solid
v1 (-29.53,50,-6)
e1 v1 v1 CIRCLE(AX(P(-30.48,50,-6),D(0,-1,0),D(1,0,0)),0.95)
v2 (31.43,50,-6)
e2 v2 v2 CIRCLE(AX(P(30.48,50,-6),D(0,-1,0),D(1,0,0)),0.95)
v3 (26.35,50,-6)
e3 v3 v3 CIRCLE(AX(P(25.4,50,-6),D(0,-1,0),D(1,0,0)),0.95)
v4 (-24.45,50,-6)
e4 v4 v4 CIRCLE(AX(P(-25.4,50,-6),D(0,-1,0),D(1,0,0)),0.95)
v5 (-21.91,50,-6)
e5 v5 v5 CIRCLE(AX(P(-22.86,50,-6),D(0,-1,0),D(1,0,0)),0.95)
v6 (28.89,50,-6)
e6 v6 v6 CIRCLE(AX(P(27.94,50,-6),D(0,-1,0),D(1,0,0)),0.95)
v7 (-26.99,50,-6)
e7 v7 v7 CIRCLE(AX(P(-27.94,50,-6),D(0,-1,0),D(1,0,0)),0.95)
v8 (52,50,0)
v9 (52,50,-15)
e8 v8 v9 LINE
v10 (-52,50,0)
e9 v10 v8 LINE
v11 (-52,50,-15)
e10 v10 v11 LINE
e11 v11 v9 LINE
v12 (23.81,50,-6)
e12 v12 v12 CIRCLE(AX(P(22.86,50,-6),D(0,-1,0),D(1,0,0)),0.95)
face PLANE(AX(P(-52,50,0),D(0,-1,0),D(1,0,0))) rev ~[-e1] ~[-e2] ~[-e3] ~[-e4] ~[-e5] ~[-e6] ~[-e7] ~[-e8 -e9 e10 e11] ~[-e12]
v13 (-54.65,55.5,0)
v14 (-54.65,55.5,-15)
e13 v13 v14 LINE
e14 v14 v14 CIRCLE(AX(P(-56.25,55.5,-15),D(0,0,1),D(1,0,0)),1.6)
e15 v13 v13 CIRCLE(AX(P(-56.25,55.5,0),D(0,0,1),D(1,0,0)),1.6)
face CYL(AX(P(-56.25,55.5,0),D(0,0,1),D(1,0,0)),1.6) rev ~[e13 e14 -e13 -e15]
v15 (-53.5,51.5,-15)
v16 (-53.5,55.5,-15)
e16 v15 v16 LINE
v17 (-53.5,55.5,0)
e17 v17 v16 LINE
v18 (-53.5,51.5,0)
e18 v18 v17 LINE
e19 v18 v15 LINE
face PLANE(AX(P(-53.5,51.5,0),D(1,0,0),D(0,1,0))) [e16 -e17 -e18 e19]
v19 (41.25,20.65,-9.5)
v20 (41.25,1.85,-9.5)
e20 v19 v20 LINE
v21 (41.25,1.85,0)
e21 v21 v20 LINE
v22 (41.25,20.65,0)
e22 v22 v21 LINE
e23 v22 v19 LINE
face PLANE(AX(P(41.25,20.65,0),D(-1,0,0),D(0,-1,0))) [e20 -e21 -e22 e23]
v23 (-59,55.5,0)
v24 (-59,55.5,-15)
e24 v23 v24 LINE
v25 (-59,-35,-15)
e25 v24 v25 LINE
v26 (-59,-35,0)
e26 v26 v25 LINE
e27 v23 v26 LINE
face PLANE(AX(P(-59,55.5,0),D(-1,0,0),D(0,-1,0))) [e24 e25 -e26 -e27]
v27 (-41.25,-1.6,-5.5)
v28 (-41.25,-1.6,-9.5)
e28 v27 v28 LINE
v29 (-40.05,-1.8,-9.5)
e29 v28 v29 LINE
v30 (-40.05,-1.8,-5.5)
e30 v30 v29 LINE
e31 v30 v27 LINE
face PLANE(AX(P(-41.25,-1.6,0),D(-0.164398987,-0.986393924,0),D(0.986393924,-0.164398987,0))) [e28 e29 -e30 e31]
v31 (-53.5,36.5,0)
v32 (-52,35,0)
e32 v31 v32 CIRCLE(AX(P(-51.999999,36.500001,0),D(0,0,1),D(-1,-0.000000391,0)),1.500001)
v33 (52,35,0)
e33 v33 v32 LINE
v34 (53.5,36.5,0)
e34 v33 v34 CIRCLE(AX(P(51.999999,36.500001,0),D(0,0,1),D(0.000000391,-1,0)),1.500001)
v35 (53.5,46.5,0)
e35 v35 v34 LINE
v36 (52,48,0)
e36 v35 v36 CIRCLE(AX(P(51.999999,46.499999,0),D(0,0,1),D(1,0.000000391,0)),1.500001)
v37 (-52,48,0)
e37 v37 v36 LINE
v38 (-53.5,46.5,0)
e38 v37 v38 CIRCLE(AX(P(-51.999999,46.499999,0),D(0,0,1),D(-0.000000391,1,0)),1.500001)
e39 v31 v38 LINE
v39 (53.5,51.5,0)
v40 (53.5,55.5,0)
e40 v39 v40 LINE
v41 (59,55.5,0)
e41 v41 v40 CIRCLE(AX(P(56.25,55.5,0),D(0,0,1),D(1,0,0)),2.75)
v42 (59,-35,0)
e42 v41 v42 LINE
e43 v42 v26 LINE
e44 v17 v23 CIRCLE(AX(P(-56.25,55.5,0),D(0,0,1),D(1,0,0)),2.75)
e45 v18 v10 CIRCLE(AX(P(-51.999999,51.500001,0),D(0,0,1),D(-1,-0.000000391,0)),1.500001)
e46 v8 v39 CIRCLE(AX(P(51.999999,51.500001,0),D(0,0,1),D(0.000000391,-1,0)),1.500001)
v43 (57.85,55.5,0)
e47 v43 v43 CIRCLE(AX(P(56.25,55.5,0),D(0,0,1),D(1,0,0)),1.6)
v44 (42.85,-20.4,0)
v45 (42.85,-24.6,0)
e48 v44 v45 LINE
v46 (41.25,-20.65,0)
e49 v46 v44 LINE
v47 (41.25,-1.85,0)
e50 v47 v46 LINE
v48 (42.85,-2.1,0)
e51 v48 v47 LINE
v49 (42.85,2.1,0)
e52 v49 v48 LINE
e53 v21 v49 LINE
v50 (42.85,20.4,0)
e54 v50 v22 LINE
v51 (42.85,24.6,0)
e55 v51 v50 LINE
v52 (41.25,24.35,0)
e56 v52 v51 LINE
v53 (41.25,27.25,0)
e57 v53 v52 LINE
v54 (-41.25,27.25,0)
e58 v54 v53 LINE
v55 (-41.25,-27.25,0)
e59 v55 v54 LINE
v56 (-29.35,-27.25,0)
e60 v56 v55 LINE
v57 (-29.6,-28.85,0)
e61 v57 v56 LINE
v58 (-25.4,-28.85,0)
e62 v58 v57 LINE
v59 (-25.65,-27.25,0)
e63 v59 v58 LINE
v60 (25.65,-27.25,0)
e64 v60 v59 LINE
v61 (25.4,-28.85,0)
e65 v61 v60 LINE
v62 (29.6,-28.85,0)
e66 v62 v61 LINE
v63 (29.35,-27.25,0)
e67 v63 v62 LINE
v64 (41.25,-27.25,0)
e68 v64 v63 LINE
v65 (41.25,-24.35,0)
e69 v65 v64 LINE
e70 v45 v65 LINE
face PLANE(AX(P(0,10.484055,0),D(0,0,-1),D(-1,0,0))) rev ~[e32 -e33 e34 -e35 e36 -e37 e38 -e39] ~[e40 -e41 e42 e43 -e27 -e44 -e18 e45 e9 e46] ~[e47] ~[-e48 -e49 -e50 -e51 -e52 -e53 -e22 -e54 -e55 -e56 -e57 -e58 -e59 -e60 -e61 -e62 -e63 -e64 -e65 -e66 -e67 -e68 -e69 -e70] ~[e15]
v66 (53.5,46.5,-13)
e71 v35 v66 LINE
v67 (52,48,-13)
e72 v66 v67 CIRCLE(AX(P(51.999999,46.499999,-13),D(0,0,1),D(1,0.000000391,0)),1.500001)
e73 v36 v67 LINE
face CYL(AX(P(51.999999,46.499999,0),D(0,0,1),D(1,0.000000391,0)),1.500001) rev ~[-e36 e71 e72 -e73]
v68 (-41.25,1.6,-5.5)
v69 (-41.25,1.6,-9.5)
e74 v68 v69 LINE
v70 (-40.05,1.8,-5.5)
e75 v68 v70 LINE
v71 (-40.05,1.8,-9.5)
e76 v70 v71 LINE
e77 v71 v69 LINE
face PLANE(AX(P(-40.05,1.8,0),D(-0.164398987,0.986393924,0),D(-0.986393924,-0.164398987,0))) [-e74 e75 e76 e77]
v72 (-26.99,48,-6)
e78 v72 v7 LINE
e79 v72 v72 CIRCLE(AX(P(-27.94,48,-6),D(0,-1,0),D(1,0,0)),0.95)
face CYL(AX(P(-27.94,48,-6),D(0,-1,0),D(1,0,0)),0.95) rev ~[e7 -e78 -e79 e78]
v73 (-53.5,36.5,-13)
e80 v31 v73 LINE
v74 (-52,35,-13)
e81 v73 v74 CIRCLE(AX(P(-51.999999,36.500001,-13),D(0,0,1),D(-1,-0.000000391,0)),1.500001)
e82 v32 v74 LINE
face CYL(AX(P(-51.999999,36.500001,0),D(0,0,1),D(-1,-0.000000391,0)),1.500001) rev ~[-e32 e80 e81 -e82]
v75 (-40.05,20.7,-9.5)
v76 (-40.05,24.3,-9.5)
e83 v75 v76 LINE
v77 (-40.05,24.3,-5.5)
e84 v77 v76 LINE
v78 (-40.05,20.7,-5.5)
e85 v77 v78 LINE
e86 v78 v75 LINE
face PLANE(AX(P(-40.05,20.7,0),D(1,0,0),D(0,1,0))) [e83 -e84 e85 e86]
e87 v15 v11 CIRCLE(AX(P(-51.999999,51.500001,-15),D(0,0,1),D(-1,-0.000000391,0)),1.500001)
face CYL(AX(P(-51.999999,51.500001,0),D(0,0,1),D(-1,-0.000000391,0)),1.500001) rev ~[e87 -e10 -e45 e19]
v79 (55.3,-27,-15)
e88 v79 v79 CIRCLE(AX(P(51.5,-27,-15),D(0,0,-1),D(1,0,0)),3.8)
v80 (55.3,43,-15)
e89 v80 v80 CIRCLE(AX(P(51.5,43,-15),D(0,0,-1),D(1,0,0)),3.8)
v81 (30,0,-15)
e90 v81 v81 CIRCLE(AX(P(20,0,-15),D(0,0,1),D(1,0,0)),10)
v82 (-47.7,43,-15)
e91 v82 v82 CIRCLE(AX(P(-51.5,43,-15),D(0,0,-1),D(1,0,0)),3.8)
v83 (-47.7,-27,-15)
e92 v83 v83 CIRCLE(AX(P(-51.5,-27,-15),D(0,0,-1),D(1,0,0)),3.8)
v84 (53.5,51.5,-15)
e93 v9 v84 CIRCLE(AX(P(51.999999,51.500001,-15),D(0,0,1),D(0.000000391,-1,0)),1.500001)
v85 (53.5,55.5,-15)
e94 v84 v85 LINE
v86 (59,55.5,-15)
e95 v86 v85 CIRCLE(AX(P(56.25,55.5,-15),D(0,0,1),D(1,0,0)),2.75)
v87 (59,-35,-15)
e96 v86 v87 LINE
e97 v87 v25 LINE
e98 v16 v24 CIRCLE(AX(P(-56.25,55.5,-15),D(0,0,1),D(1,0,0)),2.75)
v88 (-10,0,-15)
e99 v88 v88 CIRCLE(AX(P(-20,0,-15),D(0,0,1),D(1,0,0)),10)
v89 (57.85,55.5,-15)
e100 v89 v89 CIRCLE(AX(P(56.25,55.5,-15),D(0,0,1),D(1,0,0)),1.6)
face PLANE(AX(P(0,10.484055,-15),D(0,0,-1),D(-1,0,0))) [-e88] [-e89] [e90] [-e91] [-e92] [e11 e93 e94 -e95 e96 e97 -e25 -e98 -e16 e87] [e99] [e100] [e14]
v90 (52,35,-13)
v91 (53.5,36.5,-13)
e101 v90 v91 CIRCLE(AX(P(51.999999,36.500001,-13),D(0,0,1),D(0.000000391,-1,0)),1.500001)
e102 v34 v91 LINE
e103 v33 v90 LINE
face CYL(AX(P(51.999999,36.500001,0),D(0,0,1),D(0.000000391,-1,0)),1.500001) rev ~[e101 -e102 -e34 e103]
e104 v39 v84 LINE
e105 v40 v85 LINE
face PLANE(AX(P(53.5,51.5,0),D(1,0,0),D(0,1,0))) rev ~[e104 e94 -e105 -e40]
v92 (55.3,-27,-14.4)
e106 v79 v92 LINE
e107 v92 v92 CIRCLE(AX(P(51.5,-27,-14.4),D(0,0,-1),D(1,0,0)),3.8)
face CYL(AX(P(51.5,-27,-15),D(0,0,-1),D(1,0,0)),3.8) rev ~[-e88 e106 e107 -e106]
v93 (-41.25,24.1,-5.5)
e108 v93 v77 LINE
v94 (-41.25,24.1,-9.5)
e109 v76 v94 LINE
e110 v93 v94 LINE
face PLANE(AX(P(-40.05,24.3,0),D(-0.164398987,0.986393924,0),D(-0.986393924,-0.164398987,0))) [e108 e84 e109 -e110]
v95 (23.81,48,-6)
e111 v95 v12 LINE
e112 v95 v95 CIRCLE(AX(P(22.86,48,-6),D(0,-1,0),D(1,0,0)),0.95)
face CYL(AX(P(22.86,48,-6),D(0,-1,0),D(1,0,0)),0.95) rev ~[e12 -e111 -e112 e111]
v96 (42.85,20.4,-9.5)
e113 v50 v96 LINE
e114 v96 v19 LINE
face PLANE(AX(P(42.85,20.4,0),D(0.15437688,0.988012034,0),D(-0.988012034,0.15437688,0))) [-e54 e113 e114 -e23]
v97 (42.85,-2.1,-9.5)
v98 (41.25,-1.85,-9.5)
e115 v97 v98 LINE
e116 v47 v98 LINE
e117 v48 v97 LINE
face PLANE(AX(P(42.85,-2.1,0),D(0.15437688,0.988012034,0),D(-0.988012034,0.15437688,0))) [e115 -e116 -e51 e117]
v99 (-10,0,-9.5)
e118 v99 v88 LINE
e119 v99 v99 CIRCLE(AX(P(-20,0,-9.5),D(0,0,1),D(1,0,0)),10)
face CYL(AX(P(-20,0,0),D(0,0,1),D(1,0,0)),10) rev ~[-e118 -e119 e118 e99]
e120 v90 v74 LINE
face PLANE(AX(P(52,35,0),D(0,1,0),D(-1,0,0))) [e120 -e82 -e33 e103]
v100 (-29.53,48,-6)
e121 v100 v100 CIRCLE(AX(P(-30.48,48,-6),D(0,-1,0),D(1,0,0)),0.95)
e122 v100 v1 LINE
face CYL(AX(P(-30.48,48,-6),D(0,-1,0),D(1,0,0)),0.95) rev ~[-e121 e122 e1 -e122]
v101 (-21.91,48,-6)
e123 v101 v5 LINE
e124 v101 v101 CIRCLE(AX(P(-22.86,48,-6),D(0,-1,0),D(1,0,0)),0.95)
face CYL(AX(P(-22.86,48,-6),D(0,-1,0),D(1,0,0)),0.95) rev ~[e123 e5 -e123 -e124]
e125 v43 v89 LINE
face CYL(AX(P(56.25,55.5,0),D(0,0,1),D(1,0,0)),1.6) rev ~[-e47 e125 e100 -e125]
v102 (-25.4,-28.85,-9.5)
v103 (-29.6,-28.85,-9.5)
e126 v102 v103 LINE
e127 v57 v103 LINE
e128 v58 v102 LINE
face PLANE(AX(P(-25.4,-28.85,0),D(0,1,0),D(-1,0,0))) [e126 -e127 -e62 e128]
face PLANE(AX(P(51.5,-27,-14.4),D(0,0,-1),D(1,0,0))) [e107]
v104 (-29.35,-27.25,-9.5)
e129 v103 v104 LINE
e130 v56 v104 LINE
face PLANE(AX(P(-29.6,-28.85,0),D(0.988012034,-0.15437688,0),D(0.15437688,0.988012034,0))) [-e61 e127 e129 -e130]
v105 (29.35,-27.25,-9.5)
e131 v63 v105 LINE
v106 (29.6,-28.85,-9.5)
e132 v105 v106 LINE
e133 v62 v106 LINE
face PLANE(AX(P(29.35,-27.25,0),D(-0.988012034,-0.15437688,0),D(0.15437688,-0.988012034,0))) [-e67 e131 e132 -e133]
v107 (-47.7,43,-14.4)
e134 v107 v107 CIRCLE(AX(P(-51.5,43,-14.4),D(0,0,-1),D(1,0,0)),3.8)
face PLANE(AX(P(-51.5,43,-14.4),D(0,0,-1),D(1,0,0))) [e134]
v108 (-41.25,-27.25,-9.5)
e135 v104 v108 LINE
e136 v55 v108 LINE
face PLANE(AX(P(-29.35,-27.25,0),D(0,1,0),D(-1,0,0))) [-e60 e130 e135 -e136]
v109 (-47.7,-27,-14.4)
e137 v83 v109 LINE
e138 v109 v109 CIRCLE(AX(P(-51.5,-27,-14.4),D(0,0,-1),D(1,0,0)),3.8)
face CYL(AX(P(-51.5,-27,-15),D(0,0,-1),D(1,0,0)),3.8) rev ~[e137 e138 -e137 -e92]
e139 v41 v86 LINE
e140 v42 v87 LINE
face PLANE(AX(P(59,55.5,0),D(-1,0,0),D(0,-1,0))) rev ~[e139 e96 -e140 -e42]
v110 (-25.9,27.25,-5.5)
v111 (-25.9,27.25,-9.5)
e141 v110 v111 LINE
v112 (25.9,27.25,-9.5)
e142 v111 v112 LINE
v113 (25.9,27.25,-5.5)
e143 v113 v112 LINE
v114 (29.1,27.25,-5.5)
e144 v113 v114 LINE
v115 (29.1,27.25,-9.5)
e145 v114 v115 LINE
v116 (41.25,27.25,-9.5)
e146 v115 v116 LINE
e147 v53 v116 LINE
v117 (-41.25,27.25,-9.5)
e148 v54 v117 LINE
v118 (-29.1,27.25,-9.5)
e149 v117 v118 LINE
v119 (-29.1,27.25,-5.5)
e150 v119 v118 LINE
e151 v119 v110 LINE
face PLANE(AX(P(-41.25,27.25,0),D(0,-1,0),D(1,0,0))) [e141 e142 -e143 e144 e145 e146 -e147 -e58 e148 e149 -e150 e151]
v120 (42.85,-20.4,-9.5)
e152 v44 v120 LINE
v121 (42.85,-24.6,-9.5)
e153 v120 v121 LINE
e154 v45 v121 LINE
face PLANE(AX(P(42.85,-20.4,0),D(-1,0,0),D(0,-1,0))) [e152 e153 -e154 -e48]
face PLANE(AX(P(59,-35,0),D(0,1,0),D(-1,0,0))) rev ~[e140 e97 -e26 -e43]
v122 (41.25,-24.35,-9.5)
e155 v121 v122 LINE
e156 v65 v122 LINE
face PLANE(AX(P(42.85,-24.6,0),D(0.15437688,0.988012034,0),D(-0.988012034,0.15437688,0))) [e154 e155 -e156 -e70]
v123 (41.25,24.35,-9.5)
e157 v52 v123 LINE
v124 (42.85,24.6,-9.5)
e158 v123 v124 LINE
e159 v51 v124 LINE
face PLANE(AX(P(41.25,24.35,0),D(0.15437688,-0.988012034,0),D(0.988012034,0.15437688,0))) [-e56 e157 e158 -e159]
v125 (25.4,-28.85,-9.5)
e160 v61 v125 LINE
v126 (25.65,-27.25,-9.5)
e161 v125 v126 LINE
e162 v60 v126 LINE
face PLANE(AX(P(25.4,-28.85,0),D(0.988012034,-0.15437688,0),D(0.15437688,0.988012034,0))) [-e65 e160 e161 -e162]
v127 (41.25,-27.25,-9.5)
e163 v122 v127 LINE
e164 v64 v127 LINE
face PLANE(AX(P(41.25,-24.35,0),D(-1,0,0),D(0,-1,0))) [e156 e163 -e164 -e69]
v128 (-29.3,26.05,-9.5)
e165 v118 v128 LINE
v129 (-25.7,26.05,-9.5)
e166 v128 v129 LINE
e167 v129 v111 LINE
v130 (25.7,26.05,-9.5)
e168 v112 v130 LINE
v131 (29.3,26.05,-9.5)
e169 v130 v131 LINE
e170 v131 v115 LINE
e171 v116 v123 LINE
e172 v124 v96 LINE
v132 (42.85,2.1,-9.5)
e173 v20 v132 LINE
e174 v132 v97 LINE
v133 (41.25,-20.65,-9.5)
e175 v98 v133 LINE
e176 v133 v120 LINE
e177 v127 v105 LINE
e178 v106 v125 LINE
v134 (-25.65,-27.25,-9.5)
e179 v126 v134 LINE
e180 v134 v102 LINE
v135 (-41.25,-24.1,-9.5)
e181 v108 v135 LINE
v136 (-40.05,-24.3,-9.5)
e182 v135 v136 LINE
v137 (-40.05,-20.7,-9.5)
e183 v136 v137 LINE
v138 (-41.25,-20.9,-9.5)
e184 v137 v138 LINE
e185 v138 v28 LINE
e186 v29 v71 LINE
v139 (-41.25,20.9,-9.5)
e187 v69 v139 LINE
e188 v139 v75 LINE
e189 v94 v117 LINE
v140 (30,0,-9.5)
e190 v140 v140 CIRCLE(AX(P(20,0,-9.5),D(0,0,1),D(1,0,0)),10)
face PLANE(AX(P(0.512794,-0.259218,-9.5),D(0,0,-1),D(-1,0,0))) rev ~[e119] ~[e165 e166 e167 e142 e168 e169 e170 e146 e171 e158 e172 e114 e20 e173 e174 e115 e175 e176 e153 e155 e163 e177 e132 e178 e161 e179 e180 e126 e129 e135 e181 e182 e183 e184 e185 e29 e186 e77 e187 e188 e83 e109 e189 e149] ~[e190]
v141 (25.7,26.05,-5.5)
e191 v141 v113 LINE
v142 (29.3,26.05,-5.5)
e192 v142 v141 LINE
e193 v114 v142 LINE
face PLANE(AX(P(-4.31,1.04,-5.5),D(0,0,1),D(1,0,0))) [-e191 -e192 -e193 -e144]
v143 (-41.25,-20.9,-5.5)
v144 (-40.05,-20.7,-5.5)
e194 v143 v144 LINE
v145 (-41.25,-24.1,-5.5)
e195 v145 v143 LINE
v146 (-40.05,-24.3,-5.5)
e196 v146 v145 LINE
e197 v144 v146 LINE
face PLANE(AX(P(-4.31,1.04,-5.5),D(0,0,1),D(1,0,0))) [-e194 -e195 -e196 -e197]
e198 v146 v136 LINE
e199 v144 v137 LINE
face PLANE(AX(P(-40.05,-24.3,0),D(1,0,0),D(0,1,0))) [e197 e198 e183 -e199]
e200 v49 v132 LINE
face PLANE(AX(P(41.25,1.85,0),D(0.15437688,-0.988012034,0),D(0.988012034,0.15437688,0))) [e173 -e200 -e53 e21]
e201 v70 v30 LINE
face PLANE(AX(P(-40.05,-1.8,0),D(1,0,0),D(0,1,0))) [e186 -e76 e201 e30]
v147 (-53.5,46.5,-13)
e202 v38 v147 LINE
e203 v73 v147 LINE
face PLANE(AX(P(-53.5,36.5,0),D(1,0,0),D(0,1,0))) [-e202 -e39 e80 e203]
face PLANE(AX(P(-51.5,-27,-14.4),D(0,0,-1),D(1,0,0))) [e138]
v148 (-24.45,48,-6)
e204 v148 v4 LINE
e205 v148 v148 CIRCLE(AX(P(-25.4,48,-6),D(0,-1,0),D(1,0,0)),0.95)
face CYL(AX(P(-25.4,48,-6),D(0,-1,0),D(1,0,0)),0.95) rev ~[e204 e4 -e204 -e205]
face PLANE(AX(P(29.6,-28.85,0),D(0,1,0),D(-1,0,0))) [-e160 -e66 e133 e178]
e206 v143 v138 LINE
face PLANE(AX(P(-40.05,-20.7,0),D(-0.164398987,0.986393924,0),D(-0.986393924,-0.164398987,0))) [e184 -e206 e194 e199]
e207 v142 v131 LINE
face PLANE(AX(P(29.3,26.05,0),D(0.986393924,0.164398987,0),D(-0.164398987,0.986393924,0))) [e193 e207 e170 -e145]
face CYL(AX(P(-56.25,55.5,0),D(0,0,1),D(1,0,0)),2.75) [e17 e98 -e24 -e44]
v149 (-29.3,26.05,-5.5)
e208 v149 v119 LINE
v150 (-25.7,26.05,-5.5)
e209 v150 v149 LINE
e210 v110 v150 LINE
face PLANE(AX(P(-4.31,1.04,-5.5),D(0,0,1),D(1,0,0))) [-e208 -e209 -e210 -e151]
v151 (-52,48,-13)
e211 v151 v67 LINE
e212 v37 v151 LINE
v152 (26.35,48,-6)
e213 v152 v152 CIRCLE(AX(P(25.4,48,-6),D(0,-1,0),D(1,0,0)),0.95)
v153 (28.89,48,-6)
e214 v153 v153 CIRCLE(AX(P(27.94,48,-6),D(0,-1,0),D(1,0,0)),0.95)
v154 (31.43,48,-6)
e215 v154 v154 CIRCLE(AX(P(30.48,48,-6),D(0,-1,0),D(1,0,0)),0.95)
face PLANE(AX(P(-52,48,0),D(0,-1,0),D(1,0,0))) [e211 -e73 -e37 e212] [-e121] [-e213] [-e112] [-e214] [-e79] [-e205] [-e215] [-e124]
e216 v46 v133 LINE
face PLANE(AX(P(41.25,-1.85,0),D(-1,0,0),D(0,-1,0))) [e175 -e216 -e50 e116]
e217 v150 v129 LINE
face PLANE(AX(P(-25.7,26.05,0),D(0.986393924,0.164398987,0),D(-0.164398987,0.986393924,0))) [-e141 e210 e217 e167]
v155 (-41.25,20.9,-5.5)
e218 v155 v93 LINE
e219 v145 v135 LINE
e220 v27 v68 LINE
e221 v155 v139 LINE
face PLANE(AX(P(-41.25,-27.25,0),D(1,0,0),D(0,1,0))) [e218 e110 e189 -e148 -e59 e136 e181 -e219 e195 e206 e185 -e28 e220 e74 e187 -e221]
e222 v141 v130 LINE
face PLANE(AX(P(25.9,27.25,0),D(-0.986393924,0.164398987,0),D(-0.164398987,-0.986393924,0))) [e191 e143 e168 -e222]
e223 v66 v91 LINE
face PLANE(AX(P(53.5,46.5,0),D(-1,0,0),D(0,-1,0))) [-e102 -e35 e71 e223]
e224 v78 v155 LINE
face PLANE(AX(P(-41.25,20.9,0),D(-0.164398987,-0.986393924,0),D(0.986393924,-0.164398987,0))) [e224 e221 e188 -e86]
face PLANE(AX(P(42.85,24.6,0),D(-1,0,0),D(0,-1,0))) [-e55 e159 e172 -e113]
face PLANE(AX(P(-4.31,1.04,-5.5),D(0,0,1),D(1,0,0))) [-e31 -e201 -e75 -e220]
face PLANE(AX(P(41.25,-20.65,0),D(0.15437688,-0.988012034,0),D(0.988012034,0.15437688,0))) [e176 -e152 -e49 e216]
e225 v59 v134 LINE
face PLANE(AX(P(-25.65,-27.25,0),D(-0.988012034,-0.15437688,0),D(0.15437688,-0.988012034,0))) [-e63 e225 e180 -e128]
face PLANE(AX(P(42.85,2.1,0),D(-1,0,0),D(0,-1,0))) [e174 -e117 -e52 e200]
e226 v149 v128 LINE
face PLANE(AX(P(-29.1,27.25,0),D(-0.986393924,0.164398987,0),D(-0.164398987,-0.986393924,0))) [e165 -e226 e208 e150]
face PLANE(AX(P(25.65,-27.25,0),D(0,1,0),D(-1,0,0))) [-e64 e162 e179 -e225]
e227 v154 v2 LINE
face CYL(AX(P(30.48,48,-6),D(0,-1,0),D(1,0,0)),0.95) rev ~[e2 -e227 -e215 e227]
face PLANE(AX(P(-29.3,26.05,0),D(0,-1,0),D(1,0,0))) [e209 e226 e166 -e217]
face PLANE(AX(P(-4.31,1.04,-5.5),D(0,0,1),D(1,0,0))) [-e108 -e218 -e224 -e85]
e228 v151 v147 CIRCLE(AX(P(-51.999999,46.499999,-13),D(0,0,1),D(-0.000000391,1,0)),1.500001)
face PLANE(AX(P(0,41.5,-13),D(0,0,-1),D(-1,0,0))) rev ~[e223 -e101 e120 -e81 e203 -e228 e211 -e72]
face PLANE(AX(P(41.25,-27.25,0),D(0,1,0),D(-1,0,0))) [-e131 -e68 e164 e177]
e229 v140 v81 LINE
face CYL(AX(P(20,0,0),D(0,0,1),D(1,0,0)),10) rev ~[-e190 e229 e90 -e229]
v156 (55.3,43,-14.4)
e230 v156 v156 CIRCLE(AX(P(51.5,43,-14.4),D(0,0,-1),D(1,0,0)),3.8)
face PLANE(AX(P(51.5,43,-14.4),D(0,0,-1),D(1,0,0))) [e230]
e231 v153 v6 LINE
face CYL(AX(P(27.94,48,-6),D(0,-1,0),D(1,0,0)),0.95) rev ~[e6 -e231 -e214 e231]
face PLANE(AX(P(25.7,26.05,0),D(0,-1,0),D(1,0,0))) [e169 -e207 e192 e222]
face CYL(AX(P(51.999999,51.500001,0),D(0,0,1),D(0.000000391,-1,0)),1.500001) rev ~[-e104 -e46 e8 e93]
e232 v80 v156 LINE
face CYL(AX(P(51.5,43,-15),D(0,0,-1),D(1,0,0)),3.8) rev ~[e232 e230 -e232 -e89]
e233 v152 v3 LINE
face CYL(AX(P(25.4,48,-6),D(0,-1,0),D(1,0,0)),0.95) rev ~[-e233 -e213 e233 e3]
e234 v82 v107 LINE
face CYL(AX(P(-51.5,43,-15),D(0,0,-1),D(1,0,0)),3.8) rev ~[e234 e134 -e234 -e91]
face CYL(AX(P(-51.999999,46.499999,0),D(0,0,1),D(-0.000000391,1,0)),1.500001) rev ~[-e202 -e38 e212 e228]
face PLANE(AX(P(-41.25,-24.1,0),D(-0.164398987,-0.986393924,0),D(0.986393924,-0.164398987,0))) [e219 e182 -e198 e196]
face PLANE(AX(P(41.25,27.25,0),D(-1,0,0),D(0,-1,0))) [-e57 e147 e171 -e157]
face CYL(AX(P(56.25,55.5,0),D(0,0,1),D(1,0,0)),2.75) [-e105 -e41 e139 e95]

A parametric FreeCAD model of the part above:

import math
import FreeCAD as App
import Part
import Sketcher
from FreeCAD import Vector

doc = App.newDocument("Part")
params = doc.addObject("Spreadsheet::Sheet", "Params")
for row, (alias, value) in enumerate([
    ("sketch1_width", "11.9 mm"),
    ("sketch1_width2", "4.2 mm"),
    ("sketch1_width3", "51.3 mm"),
    ("sketch1_width4", "3.6 mm"),
    ("sketch1_width5", "51.8 mm"),
    ("pad1_length", "9.5 mm"),
    ("sketch2_diameter", "3.2 mm"),
    ("sketch2_radius", "1.500001 mm"),
    ("sketch2_width", "104 mm"),
    ("sketch2_width2", "118 mm"),
    ("sketch2_height", "4 mm"),
    ("pad2_length", "15 mm"),
    ("sketch3_radius", "1.500001 mm"),
    ("sketch3_width", "104 mm"),
    ("sketch3_height", "10 mm"),
    ("pocket1_length", "13 mm"),
    ("sketch4_diameter", "20 mm"),
    ("sketch5_diameter", "1.9 mm"),
    ("pocket3_length", "2 mm"),
    ("sketch6_diameter", "7.6 mm"),
    ("pocket4_length", "0.6 mm"),
    ("sketch7_width", "73.88 mm"),
    ("sketch7_height", "52.42 mm"),
    ("pocket5_length", "5.5 mm"),
], start=1):
    params.set(f"A{row}", alias)
    params.set(f"B{row}", "=" + value)
    params.setAlias(f"B{row}", alias)

body = doc.addObject("PartDesign::Body", "Body")

# Sketch on XY plane
sketch1 = body.newObject("Sketcher::SketchObject", "Sketch")
sketch1.AttachmentSupport = (doc.getObject("XY_Plane"), [""])
sketch1.MapMode = "FlatFace"
sketch1.addGeometry([
    Part.LineSegment(Vector(-29.1, 27.2, 0), Vector(-41.2, 27.2, 0)),  # 0
    Part.LineSegment(Vector(-41.2, 27.2, 0), Vector(-41.2, 24.1, 0)),  # 1
    Part.LineSegment(Vector(-41.2, 24.1, 0), Vector(-40, 24.3, 0)),  # 2
    Part.LineSegment(Vector(-40, 24.3, 0), Vector(-40, 20.7, 0)),  # 3
    Part.LineSegment(Vector(-40, 20.7, 0), Vector(-41.2, 20.9, 0)),  # 4
    Part.LineSegment(Vector(-41.2, 20.9, 0), Vector(-41.2, 1.6, 0)),  # 5
    Part.LineSegment(Vector(-41.2, 1.6, 0), Vector(-40, 1.8, 0)),  # 6
    Part.LineSegment(Vector(-40, 1.8, 0), Vector(-40, -1.8, 0)),  # 7
    Part.LineSegment(Vector(-40, -1.8, 0), Vector(-41.2, -1.6, 0)),  # 8
    Part.LineSegment(Vector(-41.2, -1.6, 0), Vector(-41.2, -20.9, 0)),  # 9
    Part.LineSegment(Vector(-41.2, -20.9, 0), Vector(-40, -20.7, 0)),  # 10
    Part.LineSegment(Vector(-40, -20.7, 0), Vector(-40, -24.3, 0)),  # 11
    Part.LineSegment(Vector(-40, -24.3, 0), Vector(-41.2, -24.1, 0)),  # 12
    Part.LineSegment(Vector(-41.2, -24.1, 0), Vector(-41.2, -27.2, 0)),  # 13
    Part.LineSegment(Vector(-41.2, -27.2, 0), Vector(-29.4, -27.2, 0)),  # 14
    Part.LineSegment(Vector(-29.4, -27.2, 0), Vector(-29.6, -28.9, 0)),  # 15
    Part.LineSegment(Vector(-29.6, -28.9, 0), Vector(-25.4, -28.9, 0)),  # 16
    Part.LineSegment(Vector(-25.4, -28.9, 0), Vector(-25.6, -27.2, 0)),  # 17
    Part.LineSegment(Vector(-25.6, -27.2, 0), Vector(25.6, -27.2, 0)),  # 18
    Part.LineSegment(Vector(25.6, -27.2, 0), Vector(25.4, -28.9, 0)),  # 19
    Part.LineSegment(Vector(25.4, -28.9, 0), Vector(29.6, -28.9, 0)),  # 20
    Part.LineSegment(Vector(29.6, -28.9, 0), Vector(29.4, -27.2, 0)),  # 21
    Part.LineSegment(Vector(29.4, -27.2, 0), Vector(41.2, -27.2, 0)),  # 22
    Part.LineSegment(Vector(41.2, -27.2, 0), Vector(41.2, -24.4, 0)),  # 23
    Part.LineSegment(Vector(41.2, -24.4, 0), Vector(42.9, -24.6, 0)),  # 24
    Part.LineSegment(Vector(42.9, -24.6, 0), Vector(42.9, -20.4, 0)),  # 25
    Part.LineSegment(Vector(42.9, -20.4, 0), Vector(41.2, -20.6, 0)),  # 26
    Part.LineSegment(Vector(41.2, -20.6, 0), Vector(41.2, -1.9, 0)),  # 27
    Part.LineSegment(Vector(41.2, -1.9, 0), Vector(42.9, -2.1, 0)),  # 28
    Part.LineSegment(Vector(42.9, -2.1, 0), Vector(42.9, 2.1, 0)),  # 29
    Part.LineSegment(Vector(42.9, 2.1, 0), Vector(41.2, 1.9, 0)),  # 30
    Part.LineSegment(Vector(41.2, 1.9, 0), Vector(41.2, 20.6, 0)),  # 31
    Part.LineSegment(Vector(41.2, 20.6, 0), Vector(42.9, 20.4, 0)),  # 32
    Part.LineSegment(Vector(42.9, 20.4, 0), Vector(42.9, 24.6, 0)),  # 33
    Part.LineSegment(Vector(42.9, 24.6, 0), Vector(41.2, 24.4, 0)),  # 34
    Part.LineSegment(Vector(41.2, 24.4, 0), Vector(41.2, 27.2, 0)),  # 35
    Part.LineSegment(Vector(41.2, 27.2, 0), Vector(29.1, 27.2, 0)),  # 36
    Part.LineSegment(Vector(29.1, 27.2, 0), Vector(29.3, 26.1, 0)),  # 37
    Part.LineSegment(Vector(29.3, 26.1, 0), Vector(25.7, 26.1, 0)),  # 38
    Part.LineSegment(Vector(25.7, 26.1, 0), Vector(25.9, 27.2, 0)),  # 39
    Part.LineSegment(Vector(25.9, 27.2, 0), Vector(-25.9, 27.2, 0)),  # 40
    Part.LineSegment(Vector(-25.9, 27.2, 0), Vector(-25.7, 26.1, 0)),  # 41
    Part.LineSegment(Vector(-25.7, 26.1, 0), Vector(-29.3, 26.1, 0)),  # 42
    Part.LineSegment(Vector(-29.3, 26.1, 0), Vector(-29.1, 27.2, 0)),  # 43
], False)
sketch1.addConstraint([
    Sketcher.Constraint("Coincident", 0, 2, 1, 1),
    Sketcher.Constraint("Coincident", 1, 2, 2, 1),
    Sketcher.Constraint("Coincident", 2, 2, 3, 1),
    Sketcher.Constraint("Coincident", 3, 2, 4, 1),
    Sketcher.Constraint("Coincident", 4, 2, 5, 1),
    Sketcher.Constraint("Coincident", 5, 2, 6, 1),
    Sketcher.Constraint("Coincident", 6, 2, 7, 1),
    Sketcher.Constraint("Coincident", 7, 2, 8, 1),
    Sketcher.Constraint("Coincident", 8, 2, 9, 1),
    Sketcher.Constraint("Coincident", 9, 2, 10, 1),
    Sketcher.Constraint("Coincident", 10, 2, 11, 1),
    Sketcher.Constraint("Coincident", 11, 2, 12, 1),
    Sketcher.Constraint("Coincident", 12, 2, 13, 1),
    Sketcher.Constraint("Coincident", 13, 2, 14, 1),
    Sketcher.Constraint("Coincident", 14, 2, 15, 1),
    Sketcher.Constraint("Coincident", 15, 2, 16, 1),
    Sketcher.Constraint("Coincident", 16, 2, 17, 1),
    Sketcher.Constraint("Coincident", 17, 2, 18, 1),
    Sketcher.Constraint("Coincident", 18, 2, 19, 1),
    Sketcher.Constraint("Coincident", 19, 2, 20, 1),
    Sketcher.Constraint("Coincident", 20, 2, 21, 1),
    Sketcher.Constraint("Coincident", 21, 2, 22, 1),
    Sketcher.Constraint("Coincident", 22, 2, 23, 1),
    Sketcher.Constraint("Coincident", 23, 2, 24, 1),
    Sketcher.Constraint("Coincident", 24, 2, 25, 1),
    Sketcher.Constraint("Coincident", 25, 2, 26, 1),
    Sketcher.Constraint("Coincident", 26, 2, 27, 1),
    Sketcher.Constraint("Coincident", 27, 2, 28, 1),
    Sketcher.Constraint("Coincident", 28, 2, 29, 1),
    Sketcher.Constraint("Coincident", 29, 2, 30, 1),
    Sketcher.Constraint("Coincident", 30, 2, 31, 1),
    Sketcher.Constraint("Coincident", 31, 2, 32, 1),
    Sketcher.Constraint("Coincident", 32, 2, 33, 1),
    Sketcher.Constraint("Coincident", 33, 2, 34, 1),
    Sketcher.Constraint("Coincident", 34, 2, 35, 1),
    Sketcher.Constraint("Coincident", 35, 2, 36, 1),
    Sketcher.Constraint("Coincident", 36, 2, 37, 1),
    Sketcher.Constraint("Coincident", 37, 2, 38, 1),
    Sketcher.Constraint("Coincident", 38, 2, 39, 1),
    Sketcher.Constraint("Coincident", 39, 2, 40, 1),
    Sketcher.Constraint("Coincident", 40, 2, 41, 1),
    Sketcher.Constraint("Coincident", 41, 2, 42, 1),
    Sketcher.Constraint("Coincident", 42, 2, 43, 1),
    Sketcher.Constraint("Coincident", 43, 2, 0, 1),
    Sketcher.Constraint("Horizontal", 0),
    Sketcher.Constraint("Vertical", 1),
    Sketcher.Constraint("Vertical", 3),
    Sketcher.Constraint("Vertical", 5),
    Sketcher.Constraint("Vertical", 7),
    Sketcher.Constraint("Vertical", 9),
    Sketcher.Constraint("Vertical", 11),
    Sketcher.Constraint("Vertical", 13),
    Sketcher.Constraint("Horizontal", 14),
    Sketcher.Constraint("Horizontal", 16),
    Sketcher.Constraint("Horizontal", 18),
    Sketcher.Constraint("Horizontal", 20),
    Sketcher.Constraint("Horizontal", 22),
    Sketcher.Constraint("Vertical", 23),
    Sketcher.Constraint("Vertical", 25),
    Sketcher.Constraint("Vertical", 27),
    Sketcher.Constraint("Vertical", 29),
    Sketcher.Constraint("Vertical", 31),
    Sketcher.Constraint("Vertical", 33),
    Sketcher.Constraint("Vertical", 35),
    Sketcher.Constraint("Horizontal", 36),
    Sketcher.Constraint("Horizontal", 38),
    Sketcher.Constraint("Horizontal", 40),
    Sketcher.Constraint("Horizontal", 42),
    Sketcher.Constraint("Symmetric", 0, 2, 22, 2, -1, 1),
    Sketcher.Constraint("Symmetric", 13, 2, 35, 2, -1, 1),
    Sketcher.Constraint("Symmetric", 16, 2, 19, 2, -2),
    Sketcher.Constraint("Symmetric", 14, 2, 21, 2, -2),
    Sketcher.Constraint("Symmetric", 38, 2, 41, 2, -2),
    Sketcher.Constraint("Symmetric", 5, 2, 8, 2, -1),
    Sketcher.Constraint("Symmetric", 3, 2, 10, 2, -1),
    Sketcher.Constraint("Symmetric", 1, 2, 12, 2, -1),
    Sketcher.Constraint("Symmetric", 27, 2, 30, 2, -1),
    Sketcher.Constraint("Symmetric", 25, 2, 32, 2, -1),
    Sketcher.Constraint("Parallel", 2, 6),
    Sketcher.Constraint("Parallel", 4, 8),
    Sketcher.Constraint("Parallel", 6, 10),
    Sketcher.Constraint("Parallel", 8, 12),
    Sketcher.Constraint("Parallel", 15, 19),
    Sketcher.Constraint("Parallel", 17, 21),
    Sketcher.Constraint("Perpendicular", 19, 24),
    Sketcher.Constraint("Perpendicular", 21, 26),
    Sketcher.Constraint("Parallel", 24, 28),
    Sketcher.Constraint("Parallel", 26, 30),
    Sketcher.Constraint("Parallel", 28, 32),
    Sketcher.Constraint("Parallel", 30, 34),
    Sketcher.Constraint("Perpendicular", 10, 37),
    Sketcher.Constraint("Perpendicular", 12, 39),
    Sketcher.Constraint("Parallel", 37, 41),
    Sketcher.Constraint("Parallel", 39, 43),
    Sketcher.Constraint("Horizontal", 14, 2, 17, 2),
    Sketcher.Constraint("Horizontal", 36, 2, 39, 2),
    Sketcher.Constraint("Vertical", 1, 2, 4, 2),
    Sketcher.Constraint("Vertical", 3, 2, 6, 2),
    Sketcher.Constraint("Vertical", 23, 2, 26, 2),
    Sketcher.Constraint("Vertical", 25, 2, 28, 2),
    Sketcher.Constraint("Equal", 16, 20),
    Sketcher.Constraint("Equal", 0, 36),
    Sketcher.Constraint("Equal", 38, 42),
    Sketcher.Constraint("Equal", 42, 3),
    Sketcher.Constraint("Equal", 3, 7),
    Sketcher.Constraint("Equal", 20, 25),
    Sketcher.Constraint("Equal", 25, 29),
    Sketcher.Constraint("Equal", 29, 33),
    Sketcher.Constraint("Equal", 21, 24),
    Sketcher.Constraint("Equal", 12, 37),
    Sketcher.Constraint("DistanceX", 14, 1, 14, 2, 11.9),
    Sketcher.Constraint("DistanceX", 16, 1, 16, 2, 4.2),
    Sketcher.Constraint("DistanceX", 18, 1, 18, 2, 51.3),
    Sketcher.Constraint("DistanceX", 38, 2, 38, 1, 3.6),
    Sketcher.Constraint("DistanceX", 40, 2, 40, 1, 51.8),
    Sketcher.Constraint("DistanceY", 5, 2, 5, 1, 19.3),
    Sketcher.Constraint("DistanceY", 23, 1, 23, 2, 2.9),
    Sketcher.Constraint("DistanceY", 27, 1, 27, 2, 18.8),
    Sketcher.Constraint("DistanceX", 14, 2, 18, 2, 55.0),
    Sketcher.Constraint("DistanceX", 0, 2, 0, 1, 12.15),
    Sketcher.Constraint("DistanceX", 1, 2, 2, 2, 1.2),
    Sketcher.Constraint("DistanceY", 15, 2, 14, 2, 1.6),
])
sketch1.setExpression("Constraints[110]", "Params.sketch1_width")
sketch1.setExpression("Constraints[111]", "Params.sketch1_width2")
sketch1.setExpression("Constraints[112]", "Params.sketch1_width3")
sketch1.setExpression("Constraints[113]", "Params.sketch1_width4")
sketch1.setExpression("Constraints[114]", "Params.sketch1_width5")
pad1 = body.newObject("PartDesign::Pad", "Pad")
pad1.Profile = sketch1
pad1.setExpression("Length", "Params.pad1_length")
pad1.Reversed = True
body2 = doc.addObject("PartDesign::Body", "Body001")

# Sketch on XY plane
sketch2 = body2.newObject("Sketcher::SketchObject", "Sketch001")
sketch2.AttachmentSupport = (doc.getObject("XY_Plane001"), [""])
sketch2.MapMode = "FlatFace"
sketch2.addGeometry([
    Part.LineSegment(Vector(52, 50, 0), Vector(-52, 50, 0)),  # 0
    Part.ArcOfCircle(Part.Circle(Vector(-52, 51.5, 0), Vector(0, 0, 1), 1.5), math.radians(-180), math.radians(-90)),  # 1
    Part.LineSegment(Vector(-53.5, 51.5, 0), Vector(-53.5, 55.5, 0)),  # 2
    Part.ArcOfCircle(Part.Circle(Vector(-56.2, 55.5, 0), Vector(0, 0, 1), 2.8), math.radians(0), math.radians(180)),  # 3
    Part.LineSegment(Vector(-59, 55.5, 0), Vector(-59, -35, 0)),  # 4
    Part.LineSegment(Vector(-59, -35, 0), Vector(59, -35, 0)),  # 5
    Part.LineSegment(Vector(59, -35, 0), Vector(59, 55.5, 0)),  # 6
    Part.ArcOfCircle(Part.Circle(Vector(56.2, 55.5, 0), Vector(0, 0, 1), 2.8), math.radians(0), math.radians(180)),  # 7
    Part.LineSegment(Vector(53.5, 55.5, 0), Vector(53.5, 51.5, 0)),  # 8
    Part.ArcOfCircle(Part.Circle(Vector(52, 51.5, 0), Vector(0, 0, 1), 1.5), math.radians(-90), math.radians(0)),  # 9
    Part.Circle(Vector(56.2, 55.5, 0), Vector(0, 0, 1), 1.6),  # 10
    Part.Circle(Vector(-56.2, 55.5, 0), Vector(0, 0, 1), 1.6),  # 11
], False)
sketch2.addConstraint([
    Sketcher.Constraint("Tangent", 0, 2, 1, 2),
    Sketcher.Constraint("Tangent", 1, 1, 2, 1),
    Sketcher.Constraint("Tangent", 2, 2, 3, 1),
    Sketcher.Constraint("Tangent", 3, 2, 4, 1),
    Sketcher.Constraint("Coincident", 4, 2, 5, 1),
    Sketcher.Constraint("Coincident", 5, 2, 6, 1),
    Sketcher.Constraint("Tangent", 6, 2, 7, 1),
    Sketcher.Constraint("Tangent", 7, 2, 8, 1),
    Sketcher.Constraint("Tangent", 8, 2, 9, 2),
    Sketcher.Constraint("Tangent", 9, 1, 0, 1),
    Sketcher.Constraint("Horizontal", 0),
    Sketcher.Constraint("Vertical", 2),
    Sketcher.Constraint("Vertical", 4),
    Sketcher.Constraint("Horizontal", 5),
    Sketcher.Constraint("Vertical", 6),
    Sketcher.Constraint("Vertical", 8),
    Sketcher.Constraint("Coincident", 10, 3, 7, 3),
    Sketcher.Constraint("Coincident", 11, 3, 3, 3),
    Sketcher.Constraint("Equal", 3, 7),
    Sketcher.Constraint("Equal", 1, 9),
    Sketcher.Constraint("Equal", 10, 11),
    Sketcher.Constraint("Symmetric", 3, 3, 7, 3, -2),
    Sketcher.Constraint("Diameter", 10, 3.2),
    Sketcher.Constraint("Radius", 1, 1.500001),
    Sketcher.Constraint("DistanceX", 0, 2, 0, 1, 104.0),
    Sketcher.Constraint("DistanceX", 5, 1, 5, 2, 118.0),
    Sketcher.Constraint("DistanceY", 2, 1, 2, 2, 4.0),
    Sketcher.Constraint("DistanceY", 4, 2, 4, 1, 90.5),
    Sketcher.Constraint("DistanceY", -1, 1, 0, 2, 50.0),
])
sketch2.setExpression("Constraints[22]", "Params.sketch2_diameter")
sketch2.setExpression("Constraints[23]", "Params.sketch2_radius")
sketch2.setExpression("Constraints[24]", "Params.sketch2_width")
sketch2.setExpression("Constraints[25]", "Params.sketch2_width2")
sketch2.setExpression("Constraints[26]", "Params.sketch2_height")
pad2 = body2.newObject("PartDesign::Pad", "Pad001")
pad2.Profile = sketch2
pad2.setExpression("Length", "Params.pad2_length")
pad2.Reversed = True

# Sketch on XY plane
sketch3 = body2.newObject("Sketcher::SketchObject", "Sketch002")
sketch3.AttachmentSupport = (doc.getObject("XY_Plane001"), [""])
sketch3.MapMode = "FlatFace"
sketch3.addGeometry([
    Part.LineSegment(Vector(52, 48, 0), Vector(-52, 48, 0)),  # 0
    Part.ArcOfCircle(Part.Circle(Vector(-52, 46.5, 0), Vector(0, 0, 1), 1.5), math.radians(90), math.radians(180)),  # 1
    Part.LineSegment(Vector(-53.5, 46.5, 0), Vector(-53.5, 36.5, 0)),  # 2
    Part.ArcOfCircle(Part.Circle(Vector(-52, 36.5, 0), Vector(0, 0, 1), 1.5), math.radians(-180), math.radians(-90)),  # 3
    Part.LineSegment(Vector(-52, 35, 0), Vector(52, 35, 0)),  # 4
    Part.ArcOfCircle(Part.Circle(Vector(52, 36.5, 0), Vector(0, 0, 1), 1.5), math.radians(-90), math.radians(0)),  # 5
    Part.LineSegment(Vector(53.5, 36.5, 0), Vector(53.5, 46.5, 0)),  # 6
    Part.ArcOfCircle(Part.Circle(Vector(52, 46.5, 0), Vector(0, 0, 1), 1.5), math.radians(0), math.radians(90)),  # 7
], False)
sketch3.addConstraint([
    Sketcher.Constraint("Tangent", 0, 2, 1, 1),
    Sketcher.Constraint("Tangent", 1, 2, 2, 1),
    Sketcher.Constraint("Tangent", 2, 2, 3, 1),
    Sketcher.Constraint("Tangent", 3, 2, 4, 1),
    Sketcher.Constraint("Tangent", 4, 2, 5, 1),
    Sketcher.Constraint("Tangent", 5, 2, 6, 1),
    Sketcher.Constraint("Tangent", 6, 2, 7, 1),
    Sketcher.Constraint("Tangent", 7, 2, 0, 1),
    Sketcher.Constraint("Horizontal", 0),
    Sketcher.Constraint("Vertical", 2),
    Sketcher.Constraint("Horizontal", 4),
    Sketcher.Constraint("Vertical", 6),
    Sketcher.Constraint("Equal", 1, 3),
    Sketcher.Constraint("Equal", 3, 5),
    Sketcher.Constraint("Equal", 5, 7),
    Sketcher.Constraint("Radius", 1, 1.500001),
    Sketcher.Constraint("DistanceX", 0, 2, 0, 1, 104.0),
    Sketcher.Constraint("DistanceY", 2, 2, 2, 1, 10.0),
    Sketcher.Constraint("DistanceX", 1, 3, -1, 1, 51.999999),
    Sketcher.Constraint("DistanceY", -1, 1, 0, 2, 48.0),
])
sketch3.setExpression("Constraints[15]", "Params.sketch3_radius")
sketch3.setExpression("Constraints[16]", "Params.sketch3_width")
sketch3.setExpression("Constraints[17]", "Params.sketch3_height")
pocket1 = body2.newObject("PartDesign::Pocket", "Pocket")
pocket1.Profile = sketch3
pocket1.setExpression("Length", "Params.pocket1_length")

# Sketch on XY plane
sketch4 = body2.newObject("Sketcher::SketchObject", "Sketch003")
sketch4.AttachmentSupport = (doc.getObject("XY_Plane001"), [""])
sketch4.MapMode = "FlatFace"
sketch4.addGeometry([
    Part.Circle(Vector(-20, 0, 0), Vector(0, 0, 1), 10),
    Part.Circle(Vector(20, 0, 0), Vector(0, 0, 1), 10),
], False)
sketch4.addConstraint([
    Sketcher.Constraint("Equal", 0, 1),
    Sketcher.Constraint("Symmetric", 0, 3, 1, 3, -1, 1),
    Sketcher.Constraint("PointOnObject", 0, 3, -1),
    Sketcher.Constraint("Diameter", 0, 20.0),
    Sketcher.Constraint("DistanceX", 0, 3, -1, 1, 20.0),
])
sketch4.setExpression("Constraints[3]", "Params.sketch4_diameter")
pocket2 = body2.newObject("PartDesign::Pocket", "Pocket001")
pocket2.Profile = sketch4
pocket2.Type = "ThroughAll"

# Sketch on XZ plane
sketch5 = body2.newObject("Sketcher::SketchObject", "Sketch004")
sketch5.AttachmentSupport = (doc.getObject("XZ_Plane001"), [""])
sketch5.MapMode = "FlatFace"
sketch5.AttachmentOffset = App.Placement(Vector(0, 0, -48), App.Rotation())
sketch5.addGeometry([
    Part.Circle(Vector(-30.5, -6, 0), Vector(0, 0, 1), 0.9),  # 0
    Part.Circle(Vector(-27.9, -6, 0), Vector(0, 0, 1), 0.9),  # 1
    Part.Circle(Vector(-25.4, -6, 0), Vector(0, 0, 1), 0.9),  # 2
    Part.Circle(Vector(-22.9, -6, 0), Vector(0, 0, 1), 0.9),  # 3
    Part.Circle(Vector(22.9, -6, 0), Vector(0, 0, 1), 0.9),  # 4
    Part.Circle(Vector(25.4, -6, 0), Vector(0, 0, 1), 0.9),  # 5
    Part.Circle(Vector(27.9, -6, 0), Vector(0, 0, 1), 0.9),  # 6
    Part.Circle(Vector(30.5, -6, 0), Vector(0, 0, 1), 0.9),  # 7
], False)
sketch5.addConstraint([
    Sketcher.Constraint("Equal", 0, 1),
    Sketcher.Constraint("Equal", 1, 2),
    Sketcher.Constraint("Equal", 2, 3),
    Sketcher.Constraint("Equal", 3, 4),
    Sketcher.Constraint("Equal", 4, 5),
    Sketcher.Constraint("Equal", 5, 6),
    Sketcher.Constraint("Equal", 6, 7),
    Sketcher.Constraint("Symmetric", 3, 3, 4, 3, -2),
    Sketcher.Constraint("Symmetric", 2, 3, 5, 3, -2),
    Sketcher.Constraint("Symmetric", 1, 3, 6, 3, -2),
    Sketcher.Constraint("Symmetric", 0, 3, 7, 3, -2),
    Sketcher.Constraint("Horizontal", 0, 3, 1, 3),
    Sketcher.Constraint("Horizontal", 1, 3, 2, 3),
    Sketcher.Constraint("Horizontal", 2, 3, 3, 3),
    Sketcher.Constraint("Diameter", 0, 1.9),
    Sketcher.Constraint("DistanceY", 0, 3, -1, 1, 6.0),
    Sketcher.Constraint("DistanceX", 2, 3, -1, 1, 25.4),
    Sketcher.Constraint("DistanceX", 1, 3, 4, 3, 50.8),
    Sketcher.Constraint("DistanceX", 0, 3, -1, 1, 30.48),
    Sketcher.Constraint("DistanceX", 1, 3, -1, 1, 27.94),
])
sketch5.setExpression("Constraints[14]", "Params.sketch5_diameter")
pocket3 = body2.newObject("PartDesign::Pocket", "Pocket002")
pocket3.Profile = sketch5
pocket3.setExpression("Length", "Params.pocket3_length")

# Sketch on XY plane
sketch6 = body2.newObject("Sketcher::SketchObject", "Sketch005")
sketch6.AttachmentSupport = (doc.getObject("XY_Plane001"), [""])
sketch6.MapMode = "FlatFace"
sketch6.AttachmentOffset = App.Placement(Vector(0, 0, -15), App.Rotation())
sketch6.addGeometry([
    Part.Circle(Vector(-51.5, -27, 0), Vector(0, 0, 1), 3.8),
    Part.Circle(Vector(-51.5, 43, 0), Vector(0, 0, 1), 3.8),
    Part.Circle(Vector(51.5, 43, 0), Vector(0, 0, 1), 3.8),
    Part.Circle(Vector(51.5, -27, 0), Vector(0, 0, 1), 3.8),
], False)
sketch6.addConstraint([
    Sketcher.Constraint("Equal", 0, 1),
    Sketcher.Constraint("Equal", 1, 2),
    Sketcher.Constraint("Equal", 2, 3),
    Sketcher.Constraint("Symmetric", 1, 3, 2, 3, -2),
    Sketcher.Constraint("Symmetric", 0, 3, 3, 3, -2),
    Sketcher.Constraint("Vertical", 0, 3, 1, 3),
    Sketcher.Constraint("Diameter", 0, 7.6),
    Sketcher.Constraint("DistanceY", 0, 3, -1, 1, 27.0),
    Sketcher.Constraint("DistanceY", -1, 1, 1, 3, 43.0),
    Sketcher.Constraint("DistanceX", 1, 3, 2, 3, 103.0),
])
sketch6.setExpression("Constraints[6]", "Params.sketch6_diameter")
pocket4 = body2.newObject("PartDesign::Pocket", "Pocket003")
pocket4.Profile = sketch6
pocket4.setExpression("Length", "Params.pocket4_length")
pocket4.Reversed = True
doc.recompute()

boolean = body2.newObject("PartDesign::Boolean", "Boolean")
boolean.Type = "Cut"
boolean.addObjects([body])

# Sketch on XY plane
sketch7 = body2.newObject("Sketcher::SketchObject", "Sketch006")
sketch7.AttachmentSupport = (doc.getObject("XY_Plane001"), [""])
sketch7.MapMode = "FlatFace"
sketch7.addGeometry([
    Part.LineSegment(Vector(-41, 27, 0), Vector(-41, -25, 0)),
    Part.LineSegment(Vector(-41, -25, 0), Vector(33, -25, 0)),
    Part.LineSegment(Vector(33, -25, 0), Vector(33, 27, 0)),
    Part.LineSegment(Vector(33, 27, 0), Vector(-41, 27, 0)),
], False)
sketch7.addConstraint([
    Sketcher.Constraint("Coincident", 0, 2, 1, 1),
    Sketcher.Constraint("Coincident", 1, 2, 2, 1),
    Sketcher.Constraint("Coincident", 2, 2, 3, 1),
    Sketcher.Constraint("Coincident", 3, 2, 0, 1),
    Sketcher.Constraint("Vertical", 0),
    Sketcher.Constraint("Horizontal", 1),
    Sketcher.Constraint("Vertical", 2),
    Sketcher.Constraint("Horizontal", 3),
    Sketcher.Constraint("DistanceX", 1, 1, 1, 2, 73.88),
    Sketcher.Constraint("DistanceY", 0, 2, 0, 1, 52.42),
    Sketcher.Constraint("DistanceX", 0, 2, -1, 1, 41.25),
    Sketcher.Constraint("DistanceY", 0, 2, -1, 1, 25.17),
])
sketch7.setExpression("Constraints[8]", "Params.sketch7_width")
sketch7.setExpression("Constraints[9]", "Params.sketch7_height")
pocket5 = body2.newObject("PartDesign::Pocket", "Pocket004")
pocket5.Profile = sketch7
pocket5.setExpression("Length", "Params.pocket5_length")

doc.recompute()
